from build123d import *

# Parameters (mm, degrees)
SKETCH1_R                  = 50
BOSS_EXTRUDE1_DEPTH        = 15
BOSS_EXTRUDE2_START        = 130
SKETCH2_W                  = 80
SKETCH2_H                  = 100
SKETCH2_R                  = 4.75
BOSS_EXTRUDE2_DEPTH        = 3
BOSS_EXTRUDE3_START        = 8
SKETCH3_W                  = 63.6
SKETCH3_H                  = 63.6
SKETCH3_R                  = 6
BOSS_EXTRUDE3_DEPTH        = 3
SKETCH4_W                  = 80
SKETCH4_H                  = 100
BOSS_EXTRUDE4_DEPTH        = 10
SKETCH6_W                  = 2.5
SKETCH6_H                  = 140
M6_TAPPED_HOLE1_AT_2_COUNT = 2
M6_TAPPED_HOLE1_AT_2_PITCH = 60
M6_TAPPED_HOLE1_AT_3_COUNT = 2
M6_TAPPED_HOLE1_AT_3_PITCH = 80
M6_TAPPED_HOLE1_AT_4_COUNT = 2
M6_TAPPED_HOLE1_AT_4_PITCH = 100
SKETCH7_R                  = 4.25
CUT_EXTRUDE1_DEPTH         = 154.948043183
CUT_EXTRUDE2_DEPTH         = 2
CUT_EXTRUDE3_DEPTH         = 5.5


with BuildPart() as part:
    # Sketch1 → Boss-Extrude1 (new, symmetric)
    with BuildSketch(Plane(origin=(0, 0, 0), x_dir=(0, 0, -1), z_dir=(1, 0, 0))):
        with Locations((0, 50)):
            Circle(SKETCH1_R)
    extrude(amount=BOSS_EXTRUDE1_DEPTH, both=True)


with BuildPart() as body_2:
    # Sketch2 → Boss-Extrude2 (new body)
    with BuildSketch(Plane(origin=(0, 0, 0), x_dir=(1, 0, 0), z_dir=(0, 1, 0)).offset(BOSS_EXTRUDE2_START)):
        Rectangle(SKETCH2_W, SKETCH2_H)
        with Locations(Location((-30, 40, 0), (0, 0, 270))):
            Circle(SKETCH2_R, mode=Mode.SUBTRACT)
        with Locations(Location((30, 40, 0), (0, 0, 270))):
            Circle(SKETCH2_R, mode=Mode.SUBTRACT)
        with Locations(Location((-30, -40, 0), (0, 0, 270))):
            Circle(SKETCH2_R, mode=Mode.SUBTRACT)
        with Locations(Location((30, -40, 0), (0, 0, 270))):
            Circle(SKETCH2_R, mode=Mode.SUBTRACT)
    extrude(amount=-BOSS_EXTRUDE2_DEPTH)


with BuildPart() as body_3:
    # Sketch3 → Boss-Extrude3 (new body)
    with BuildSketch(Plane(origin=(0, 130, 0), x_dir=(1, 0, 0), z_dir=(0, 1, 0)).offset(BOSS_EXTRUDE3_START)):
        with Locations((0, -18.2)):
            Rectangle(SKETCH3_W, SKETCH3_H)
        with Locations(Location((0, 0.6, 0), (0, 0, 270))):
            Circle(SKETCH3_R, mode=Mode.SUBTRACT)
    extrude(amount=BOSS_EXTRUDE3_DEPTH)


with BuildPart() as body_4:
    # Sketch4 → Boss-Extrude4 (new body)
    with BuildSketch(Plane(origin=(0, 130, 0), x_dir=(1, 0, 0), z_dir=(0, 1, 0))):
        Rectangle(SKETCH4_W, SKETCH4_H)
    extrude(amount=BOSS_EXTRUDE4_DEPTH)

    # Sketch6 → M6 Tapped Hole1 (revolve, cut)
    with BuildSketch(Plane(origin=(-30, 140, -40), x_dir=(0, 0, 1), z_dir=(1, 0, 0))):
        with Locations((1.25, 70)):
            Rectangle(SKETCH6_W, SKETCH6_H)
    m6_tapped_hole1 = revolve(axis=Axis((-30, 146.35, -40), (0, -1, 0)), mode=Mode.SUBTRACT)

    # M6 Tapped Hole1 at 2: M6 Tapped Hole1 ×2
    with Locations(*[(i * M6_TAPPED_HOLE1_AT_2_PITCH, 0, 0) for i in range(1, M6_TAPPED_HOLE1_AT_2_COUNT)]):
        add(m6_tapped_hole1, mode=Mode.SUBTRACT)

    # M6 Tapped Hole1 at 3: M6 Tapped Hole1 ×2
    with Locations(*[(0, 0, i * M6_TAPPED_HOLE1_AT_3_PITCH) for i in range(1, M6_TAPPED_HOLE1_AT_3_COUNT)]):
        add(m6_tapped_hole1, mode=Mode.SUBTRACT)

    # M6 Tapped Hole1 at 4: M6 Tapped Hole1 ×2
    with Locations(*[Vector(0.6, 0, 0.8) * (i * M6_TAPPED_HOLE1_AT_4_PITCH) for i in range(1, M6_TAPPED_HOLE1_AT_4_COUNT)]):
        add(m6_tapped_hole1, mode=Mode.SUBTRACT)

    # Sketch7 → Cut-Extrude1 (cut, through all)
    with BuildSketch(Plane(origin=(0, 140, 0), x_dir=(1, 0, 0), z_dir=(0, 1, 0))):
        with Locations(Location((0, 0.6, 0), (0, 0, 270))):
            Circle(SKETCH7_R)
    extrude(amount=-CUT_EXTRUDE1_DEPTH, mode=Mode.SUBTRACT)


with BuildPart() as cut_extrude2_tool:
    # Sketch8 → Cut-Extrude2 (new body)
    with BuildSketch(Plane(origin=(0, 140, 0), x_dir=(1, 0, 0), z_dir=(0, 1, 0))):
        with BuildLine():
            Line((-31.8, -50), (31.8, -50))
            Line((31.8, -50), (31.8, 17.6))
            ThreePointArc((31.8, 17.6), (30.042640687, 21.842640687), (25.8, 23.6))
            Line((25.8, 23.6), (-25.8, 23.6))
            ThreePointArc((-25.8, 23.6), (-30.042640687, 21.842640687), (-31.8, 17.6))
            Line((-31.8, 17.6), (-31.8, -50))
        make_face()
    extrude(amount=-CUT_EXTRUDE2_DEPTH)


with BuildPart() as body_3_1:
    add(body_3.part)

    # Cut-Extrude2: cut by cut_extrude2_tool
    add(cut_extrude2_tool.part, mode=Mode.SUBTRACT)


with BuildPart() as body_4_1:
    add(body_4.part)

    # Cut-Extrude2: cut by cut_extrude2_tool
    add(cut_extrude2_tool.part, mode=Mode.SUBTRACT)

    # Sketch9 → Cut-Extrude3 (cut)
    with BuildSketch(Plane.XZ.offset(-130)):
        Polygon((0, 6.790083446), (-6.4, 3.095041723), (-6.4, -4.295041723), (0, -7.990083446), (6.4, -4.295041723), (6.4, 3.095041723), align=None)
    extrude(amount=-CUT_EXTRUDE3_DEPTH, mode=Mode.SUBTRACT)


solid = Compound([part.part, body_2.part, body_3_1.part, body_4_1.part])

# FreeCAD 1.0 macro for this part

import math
import FreeCAD as App
import Part
import Sketcher

V = App.Vector
Q = App.Units.Quantity

doc = App.newDocument("Part")
body = doc.addObject("PartDesign::Body", "Body")

# Sketch on YZ plane
sketch1 = body.newObject("Sketcher::SketchObject", "Sketch")
sketch1.AttachmentSupport = (doc.getObject("YZ_Plane"), [""])
sketch1.MapMode = "FlatFace"
sketch1.addGeometry(Part.Circle(V(50, 0, 0), V(0, 0, 1), 50), False)
sketch1.addConstraint([
    Sketcher.Constraint("PointOnObject", 0, 3, -1),
    Sketcher.Constraint("Diameter", 0, 100.0),
    Sketcher.Constraint("DistanceX", -1, 1, 0, 3, 50.0),
])
pad1 = body.newObject("PartDesign::Pad", "Pad")
pad1.Profile = sketch1
pad1.Length = 30
pad1.Midplane = True
body2 = doc.addObject("PartDesign::Body", "Body001")

# Sketch on XZ plane
sketch2 = body2.newObject("Sketcher::SketchObject", "Sketch001")
sketch2.AttachmentSupport = (doc.getObject("XZ_Plane001"), [""])
sketch2.MapMode = "FlatFace"
sketch2.AttachmentOffset = App.Placement(V(0, 0, -130), App.Rotation())
sketch2.addGeometry([
    Part.LineSegment(V(-40, -50, 0), V(-40, 50, 0)),  # 0
    Part.LineSegment(V(-40, 50, 0), V(40, 50, 0)),  # 1
    Part.LineSegment(V(40, 50, 0), V(40, -50, 0)),  # 2
    Part.LineSegment(V(40, -50, 0), V(-40, -50, 0)),  # 3
    Part.Circle(V(-30, 40, 0), V(0, 0, 1), 4.75),  # 4
    Part.Circle(V(30, 40, 0), V(0, 0, 1), 4.75),  # 5
    Part.Circle(V(-30, -40, 0), V(0, 0, 1), 4.75),  # 6
    Part.Circle(V(30, -40, 0), V(0, 0, 1), 4.75),  # 7
], False)
sketch2.addConstraint([
    Sketcher.Constraint("Coincident", 0, 2, 1, 1),
    Sketcher.Constraint("Coincident", 1, 2, 2, 1),
    Sketcher.Constraint("Coincident", 2, 2, 3, 1),
    Sketcher.Constraint("Coincident", 3, 2, 0, 1),
    Sketcher.Constraint("Vertical", 0),
    Sketcher.Constraint("Horizontal", 1),
    Sketcher.Constraint("Vertical", 2),
    Sketcher.Constraint("Horizontal", 3),
    Sketcher.Constraint("Equal", 4, 5),
    Sketcher.Constraint("Equal", 5, 6),
    Sketcher.Constraint("Equal", 6, 7),
    Sketcher.Constraint("Symmetric", 5, 3, 6, 3, -1, 1),
    Sketcher.Constraint("Symmetric", 4, 3, 7, 3, -1, 1),
    Sketcher.Constraint("Symmetric", 0, 2, 2, 2, -1, 1),
    Sketcher.Constraint("Symmetric", 4, 3, 5, 3, -2),
    Sketcher.Constraint("Diameter", 4, 9.5),
    Sketcher.Constraint("DistanceX", 1, 1, 1, 2, 80.0),
    Sketcher.Constraint("DistanceY", 0, 1, 0, 2, 100.0),
    Sketcher.Constraint("DistanceX", 4, 3, -1, 1, 30.0),
    Sketcher.Constraint("DistanceY", -1, 1, 4, 3, 40.0),
])
pad2 = body2.newObject("PartDesign::Pad", "Pad001")
pad2.Profile = sketch2
pad2.Length = 3
body3 = doc.addObject("PartDesign::Body", "Body002")

# Sketch on XZ plane
sketch3 = body3.newObject("Sketcher::SketchObject", "Sketch002")
sketch3.AttachmentSupport = (doc.getObject("XZ_Plane002"), [""])
sketch3.MapMode = "FlatFace"
sketch3.AttachmentOffset = App.Placement(V(0, 0, -138), App.Rotation())
sketch3.addGeometry([
    Part.LineSegment(V(-31.8, -13.6, 0), V(-31.8, 50, 0)),  # 0
    Part.LineSegment(V(-31.8, 50, 0), V(31.8, 50, 0)),  # 1
    Part.LineSegment(V(31.8, 50, 0), V(31.8, -13.6, 0)),  # 2
    Part.LineSegment(V(31.8, -13.6, 0), V(-31.8, -13.6, 0)),  # 3
    Part.Circle(V(0, -0.6, 0), V(0, 0, 1), 6),  # 4
], False)
sketch3.addConstraint([
    Sketcher.Constraint("Coincident", 0, 2, 1, 1),
    Sketcher.Constraint("Coincident", 1, 2, 2, 1),
    Sketcher.Constraint("Coincident", 2, 2, 3, 1),
    Sketcher.Constraint("Coincident", 3, 2, 0, 1),
    Sketcher.Constraint("Vertical", 0),
    Sketcher.Constraint("Horizontal", 1),
    Sketcher.Constraint("Vertical", 2),
    Sketcher.Constraint("Horizontal", 3),
    Sketcher.Constraint("PointOnObject", 4, 3, -2),
    Sketcher.Constraint("Equal", 3, 0),
    Sketcher.Constraint("Diameter", 4, 12.0),
    Sketcher.Constraint("DistanceX", 1, 1, 1, 2, 63.6),
    Sketcher.Constraint("DistanceY", -1, 1, 0, 2, 50.0),
    Sketcher.Constraint("DistanceY", 2, 2, 4, 3, 13.0),
    Sketcher.Constraint("DistanceX", 0, 2, -1, 1, 31.8),
])
pad3 = body3.newObject("PartDesign::Pad", "Pad002")
pad3.Profile = sketch3
pad3.Length = 3
pad3.Reversed = True
body4 = doc.addObject("PartDesign::Body", "Body003")

# Sketch on XZ plane
sketch4 = body4.newObject("Sketcher::SketchObject", "Sketch003")
sketch4.AttachmentSupport = (doc.getObject("XZ_Plane003"), [""])
sketch4.MapMode = "FlatFace"
sketch4.AttachmentOffset = App.Placement(V(0, 0, -130), App.Rotation())
sketch4.addGeometry([
    Part.LineSegment(V(-40, -50, 0), V(-40, 50, 0)),
    Part.LineSegment(V(-40, 50, 0), V(40, 50, 0)),
    Part.LineSegment(V(40, 50, 0), V(40, -50, 0)),
    Part.LineSegment(V(40, -50, 0), V(-40, -50, 0)),
], False)
sketch4.addConstraint([
    Sketcher.Constraint("Coincident", 0, 2, 1, 1),
    Sketcher.Constraint("Coincident", 1, 2, 2, 1),
    Sketcher.Constraint("Coincident", 2, 2, 3, 1),
    Sketcher.Constraint("Coincident", 3, 2, 0, 1),
    Sketcher.Constraint("Vertical", 0),
    Sketcher.Constraint("Horizontal", 1),
    Sketcher.Constraint("Vertical", 2),
    Sketcher.Constraint("Horizontal", 3),
    Sketcher.Constraint("Symmetric", 0, 2, 2, 2, -1, 1),
    Sketcher.Constraint("DistanceX", 1, 1, 1, 2, 80.0),
    Sketcher.Constraint("DistanceY", 0, 1, 0, 2, 100.0),
])
pad4 = body4.newObject("PartDesign::Pad", "Pad003")
pad4.Profile = sketch4
pad4.Length = 10
pad4.Reversed = True

# Sketch on YZ plane
sketch5 = body4.newObject("Sketcher::SketchObject", "Sketch004")
sketch5.AttachmentSupport = (doc.getObject("YZ_Plane003"), [""])
sketch5.MapMode = "FlatFace"
sketch5.AttachmentOffset = App.Placement(V(0, 0, -30), App.Rotation())
sketch5.addGeometry([
    Part.LineSegment(V(0, -40, 0), V(140, -40, 0)),
    Part.LineSegment(V(140, -40, 0), V(140, -37.5, 0)),
    Part.LineSegment(V(140, -37.5, 0), V(0, -37.5, 0)),
    Part.LineSegment(V(0, -37.5, 0), V(0, -40, 0)),
], False)
sketch5.addGeometry(Part.LineSegment(V(140, -40, 0), V(0, -40, 0)), True)  # axis
sketch5.addConstraint([
    Sketcher.Constraint("Coincident", 0, 2, 1, 1),
    Sketcher.Constraint("Coincident", 1, 2, 2, 1),
    Sketcher.Constraint("Coincident", 2, 2, 3, 1),
    Sketcher.Constraint("Coincident", 3, 2, 0, 1),
    Sketcher.Constraint("Horizontal", 0),
    Sketcher.Constraint("Vertical", 1),
    Sketcher.Constraint("Horizontal", 2),
    Sketcher.Constraint("Vertical", 3),
    Sketcher.Constraint("Horizontal", 4),
    Sketcher.Constraint("Coincident", 4, 1, 0, 2),
    Sketcher.Constraint("PointOnObject", 2, 2, -2),
    Sketcher.Constraint("PointOnObject", 4, 2, -2),
    Sketcher.Constraint("DistanceX", 0, 1, 0, 2, 140.0),
    Sketcher.Constraint("DistanceY", 1, 1, 1, 2, 2.5),
    Sketcher.Constraint("DistanceY", 0, 2, -1, 1, 40.0),
])
groove = body4.newObject("PartDesign::Groove", "Groove")
groove.Profile = sketch5
groove.ReferenceAxis = (sketch5, ["Axis0"])
groove.Angle = 360
doc.recompute()

linearpattern = body4.newObject("PartDesign::LinearPattern", "LinearPattern")
linearpattern.Originals = [groove]
linearpattern.Direction = (doc.getObject("X_Axis003"), [""])
linearpattern.Mode = "offset"
linearpattern.Offset = 60
linearpattern.Occurrences = 2
body4.Tip = linearpattern
doc.recompute()

linearpattern2 = body4.newObject("PartDesign::LinearPattern", "LinearPattern001")
linearpattern2.Originals = [groove]
linearpattern2.Direction = (doc.getObject("Z_Axis003"), [""])
linearpattern2.Mode = "offset"
linearpattern2.Offset = 80
linearpattern2.Occurrences = 2
body4.Tip = linearpattern2
doc.recompute()

datumline = body4.newObject("PartDesign::Line", "DatumLine")
datumline.Placement = App.Placement(V(0, 0, 0), App.Rotation(V(0, 0, 1), V(0.6, 0, 0.8)))
linearpattern3 = body4.newObject("PartDesign::LinearPattern", "LinearPattern002")
linearpattern3.Originals = [groove]
linearpattern3.Direction = (datumline, [""])
linearpattern3.Mode = "offset"
linearpattern3.Offset = 100
linearpattern3.Occurrences = 2
body4.Tip = linearpattern3

# Sketch on XZ plane
sketch6 = body4.newObject("Sketcher::SketchObject", "Sketch005")
sketch6.AttachmentSupport = (doc.getObject("XZ_Plane003"), [""])
sketch6.MapMode = "FlatFace"
sketch6.AttachmentOffset = App.Placement(V(0, 0, -140), App.Rotation())
sketch6.addGeometry(Part.Circle(V(0, -0.6, 0), V(0, 0, 1), 4.25), False)
sketch6.addConstraint([
    Sketcher.Constraint("PointOnObject", 0, 3, -2),
    Sketcher.Constraint("Diameter", 0, 8.5),
    Sketcher.Constraint("DistanceY", 0, 3, -1, 1, 0.6),
])
pocket1 = body4.newObject("PartDesign::Pocket", "Pocket")
pocket1.Profile = sketch6
pocket1.Type = "ThroughAll"
pocket1.Reversed = True
body5 = doc.addObject("PartDesign::Body", "Body004")

# Sketch on XZ plane
sketch7 = body5.newObject("Sketcher::SketchObject", "Sketch006")
sketch7.AttachmentSupport = (doc.getObject("XZ_Plane004"), [""])
sketch7.MapMode = "FlatFace"
sketch7.AttachmentOffset = App.Placement(V(0, 0, -140), App.Rotation())
sketch7.addGeometry([
    Part.LineSegment(V(-31.8, 50, 0), V(31.8, 50, 0)),  # 0
    Part.LineSegment(V(31.8, 50, 0), V(31.8, -17.6, 0)),  # 1
    Part.ArcOfCircle(Part.Circle(V(25.8, -17.6, 0), V(0, 0, 1), 6), math.radians(-90), math.radians(0)),  # 2
    Part.LineSegment(V(25.8, -23.6, 0), V(-25.8, -23.6, 0)),  # 3
    Part.ArcOfCircle(Part.Circle(V(-25.8, -17.6, 0), V(0, 0, 1), 6), math.radians(180), math.radians(270)),  # 4
    Part.LineSegment(V(-31.8, -17.6, 0), V(-31.8, 50, 0)),  # 5
], False)
sketch7.addConstraint([
    Sketcher.Constraint("Coincident", 0, 2, 1, 1),
    Sketcher.Constraint("Tangent", 1, 2, 2, 2),
    Sketcher.Constraint("Tangent", 2, 1, 3, 1),
    Sketcher.Constraint("Tangent", 3, 2, 4, 2),
    Sketcher.Constraint("Tangent", 4, 1, 5, 1),
    Sketcher.Constraint("Coincident", 5, 2, 0, 1),
    Sketcher.Constraint("Horizontal", 0),
    Sketcher.Constraint("Vertical", 1),
    Sketcher.Constraint("Horizontal", 3),
    Sketcher.Constraint("Vertical", 5),
    Sketcher.Constraint("Equal", 2, 4),
    Sketcher.Constraint("Radius", 2, 6.0),
    Sketcher.Constraint("DistanceX", 0, 1, 0, 2, 63.6),
    Sketcher.Constraint("DistanceY", 1, 2, 1, 1, 67.6),
    Sketcher.Constraint("DistanceY", -1, 1, 0, 2, 50.0),
    Sketcher.Constraint("DistanceX", -1, 1, 2, 3, 25.8),
])
pad5 = body5.newObject("PartDesign::Pad", "Pad004")
pad5.Profile = sketch7
pad5.Length = 2
doc.recompute()

body6 = doc.addObject("PartDesign::Body", "Body005")
body6.BaseFeature = body5
boolean = body3.newObject("PartDesign::Boolean", "Boolean")
boolean.Type = "Cut"
boolean.addObjects([body6])
doc.recompute()

boolean2 = body4.newObject("PartDesign::Boolean", "Boolean001")
boolean2.Type = "Cut"
boolean2.addObjects([body5])

# Sketch on XZ plane
sketch8 = body4.newObject("Sketcher::SketchObject", "Sketch007")
sketch8.AttachmentSupport = (doc.getObject("XZ_Plane003"), [""])
sketch8.MapMode = "FlatFace"
sketch8.AttachmentOffset = App.Placement(V(0, 0, -130), App.Rotation())
sketch8.addGeometry([
    Part.LineSegment(V(0, 6.790083, 0), V(-6.4, 3.095042, 0)),  # 0
    Part.LineSegment(V(-6.4, 3.095042, 0), V(-6.4, -4.295042, 0)),  # 1
    Part.LineSegment(V(-6.4, -4.295042, 0), V(0, -7.990083, 0)),  # 2
    Part.LineSegment(V(0, -7.990083, 0), V(6.4, -4.295042, 0)),  # 3
    Part.LineSegment(V(6.4, -4.295042, 0), V(6.4, 3.095042, 0)),  # 4
    Part.LineSegment(V(6.4, 3.095042, 0), V(0, 6.790083, 0)),  # 5
], False)
sketch8.addConstraint([
    Sketcher.Constraint("Coincident", 0, 2, 1, 1),
    Sketcher.Constraint("Coincident", 1, 2, 2, 1),
    Sketcher.Constraint("Coincident", 2, 2, 3, 1),
    Sketcher.Constraint("Coincident", 3, 2, 4, 1),
    Sketcher.Constraint("Coincident", 4, 2, 5, 1),
    Sketcher.Constraint("Coincident", 5, 2, 0, 1),
    Sketcher.Constraint("Vertical", 1),
    Sketcher.Constraint("Vertical", 4),
    Sketcher.Constraint("Symmetric", 1, 2, 3, 2, -2),
    Sketcher.Constraint("PointOnObject", 2, 2, -2),
    Sketcher.Constraint("PointOnObject", 5, 2, -2),
    Sketcher.Constraint("Parallel", 0, 3),
    Sketcher.Constraint("Parallel", 2, 5),
    Sketcher.Constraint("Angle", 0, Q("-150 deg")),
    Sketcher.Constraint("DistanceX", 0, 2, -1, 1, 6.4),
    Sketcher.Constraint("DistanceY", 1, 2, 1, 1, 7.390083),
    Sketcher.Constraint("DistanceY", -1, 1, 0, 2, 3.095042),
])
pocket2 = body4.newObject("PartDesign::Pocket", "Pocket001")
pocket2.Profile = sketch8
pocket2.Length = 5.5

doc.recompute()
